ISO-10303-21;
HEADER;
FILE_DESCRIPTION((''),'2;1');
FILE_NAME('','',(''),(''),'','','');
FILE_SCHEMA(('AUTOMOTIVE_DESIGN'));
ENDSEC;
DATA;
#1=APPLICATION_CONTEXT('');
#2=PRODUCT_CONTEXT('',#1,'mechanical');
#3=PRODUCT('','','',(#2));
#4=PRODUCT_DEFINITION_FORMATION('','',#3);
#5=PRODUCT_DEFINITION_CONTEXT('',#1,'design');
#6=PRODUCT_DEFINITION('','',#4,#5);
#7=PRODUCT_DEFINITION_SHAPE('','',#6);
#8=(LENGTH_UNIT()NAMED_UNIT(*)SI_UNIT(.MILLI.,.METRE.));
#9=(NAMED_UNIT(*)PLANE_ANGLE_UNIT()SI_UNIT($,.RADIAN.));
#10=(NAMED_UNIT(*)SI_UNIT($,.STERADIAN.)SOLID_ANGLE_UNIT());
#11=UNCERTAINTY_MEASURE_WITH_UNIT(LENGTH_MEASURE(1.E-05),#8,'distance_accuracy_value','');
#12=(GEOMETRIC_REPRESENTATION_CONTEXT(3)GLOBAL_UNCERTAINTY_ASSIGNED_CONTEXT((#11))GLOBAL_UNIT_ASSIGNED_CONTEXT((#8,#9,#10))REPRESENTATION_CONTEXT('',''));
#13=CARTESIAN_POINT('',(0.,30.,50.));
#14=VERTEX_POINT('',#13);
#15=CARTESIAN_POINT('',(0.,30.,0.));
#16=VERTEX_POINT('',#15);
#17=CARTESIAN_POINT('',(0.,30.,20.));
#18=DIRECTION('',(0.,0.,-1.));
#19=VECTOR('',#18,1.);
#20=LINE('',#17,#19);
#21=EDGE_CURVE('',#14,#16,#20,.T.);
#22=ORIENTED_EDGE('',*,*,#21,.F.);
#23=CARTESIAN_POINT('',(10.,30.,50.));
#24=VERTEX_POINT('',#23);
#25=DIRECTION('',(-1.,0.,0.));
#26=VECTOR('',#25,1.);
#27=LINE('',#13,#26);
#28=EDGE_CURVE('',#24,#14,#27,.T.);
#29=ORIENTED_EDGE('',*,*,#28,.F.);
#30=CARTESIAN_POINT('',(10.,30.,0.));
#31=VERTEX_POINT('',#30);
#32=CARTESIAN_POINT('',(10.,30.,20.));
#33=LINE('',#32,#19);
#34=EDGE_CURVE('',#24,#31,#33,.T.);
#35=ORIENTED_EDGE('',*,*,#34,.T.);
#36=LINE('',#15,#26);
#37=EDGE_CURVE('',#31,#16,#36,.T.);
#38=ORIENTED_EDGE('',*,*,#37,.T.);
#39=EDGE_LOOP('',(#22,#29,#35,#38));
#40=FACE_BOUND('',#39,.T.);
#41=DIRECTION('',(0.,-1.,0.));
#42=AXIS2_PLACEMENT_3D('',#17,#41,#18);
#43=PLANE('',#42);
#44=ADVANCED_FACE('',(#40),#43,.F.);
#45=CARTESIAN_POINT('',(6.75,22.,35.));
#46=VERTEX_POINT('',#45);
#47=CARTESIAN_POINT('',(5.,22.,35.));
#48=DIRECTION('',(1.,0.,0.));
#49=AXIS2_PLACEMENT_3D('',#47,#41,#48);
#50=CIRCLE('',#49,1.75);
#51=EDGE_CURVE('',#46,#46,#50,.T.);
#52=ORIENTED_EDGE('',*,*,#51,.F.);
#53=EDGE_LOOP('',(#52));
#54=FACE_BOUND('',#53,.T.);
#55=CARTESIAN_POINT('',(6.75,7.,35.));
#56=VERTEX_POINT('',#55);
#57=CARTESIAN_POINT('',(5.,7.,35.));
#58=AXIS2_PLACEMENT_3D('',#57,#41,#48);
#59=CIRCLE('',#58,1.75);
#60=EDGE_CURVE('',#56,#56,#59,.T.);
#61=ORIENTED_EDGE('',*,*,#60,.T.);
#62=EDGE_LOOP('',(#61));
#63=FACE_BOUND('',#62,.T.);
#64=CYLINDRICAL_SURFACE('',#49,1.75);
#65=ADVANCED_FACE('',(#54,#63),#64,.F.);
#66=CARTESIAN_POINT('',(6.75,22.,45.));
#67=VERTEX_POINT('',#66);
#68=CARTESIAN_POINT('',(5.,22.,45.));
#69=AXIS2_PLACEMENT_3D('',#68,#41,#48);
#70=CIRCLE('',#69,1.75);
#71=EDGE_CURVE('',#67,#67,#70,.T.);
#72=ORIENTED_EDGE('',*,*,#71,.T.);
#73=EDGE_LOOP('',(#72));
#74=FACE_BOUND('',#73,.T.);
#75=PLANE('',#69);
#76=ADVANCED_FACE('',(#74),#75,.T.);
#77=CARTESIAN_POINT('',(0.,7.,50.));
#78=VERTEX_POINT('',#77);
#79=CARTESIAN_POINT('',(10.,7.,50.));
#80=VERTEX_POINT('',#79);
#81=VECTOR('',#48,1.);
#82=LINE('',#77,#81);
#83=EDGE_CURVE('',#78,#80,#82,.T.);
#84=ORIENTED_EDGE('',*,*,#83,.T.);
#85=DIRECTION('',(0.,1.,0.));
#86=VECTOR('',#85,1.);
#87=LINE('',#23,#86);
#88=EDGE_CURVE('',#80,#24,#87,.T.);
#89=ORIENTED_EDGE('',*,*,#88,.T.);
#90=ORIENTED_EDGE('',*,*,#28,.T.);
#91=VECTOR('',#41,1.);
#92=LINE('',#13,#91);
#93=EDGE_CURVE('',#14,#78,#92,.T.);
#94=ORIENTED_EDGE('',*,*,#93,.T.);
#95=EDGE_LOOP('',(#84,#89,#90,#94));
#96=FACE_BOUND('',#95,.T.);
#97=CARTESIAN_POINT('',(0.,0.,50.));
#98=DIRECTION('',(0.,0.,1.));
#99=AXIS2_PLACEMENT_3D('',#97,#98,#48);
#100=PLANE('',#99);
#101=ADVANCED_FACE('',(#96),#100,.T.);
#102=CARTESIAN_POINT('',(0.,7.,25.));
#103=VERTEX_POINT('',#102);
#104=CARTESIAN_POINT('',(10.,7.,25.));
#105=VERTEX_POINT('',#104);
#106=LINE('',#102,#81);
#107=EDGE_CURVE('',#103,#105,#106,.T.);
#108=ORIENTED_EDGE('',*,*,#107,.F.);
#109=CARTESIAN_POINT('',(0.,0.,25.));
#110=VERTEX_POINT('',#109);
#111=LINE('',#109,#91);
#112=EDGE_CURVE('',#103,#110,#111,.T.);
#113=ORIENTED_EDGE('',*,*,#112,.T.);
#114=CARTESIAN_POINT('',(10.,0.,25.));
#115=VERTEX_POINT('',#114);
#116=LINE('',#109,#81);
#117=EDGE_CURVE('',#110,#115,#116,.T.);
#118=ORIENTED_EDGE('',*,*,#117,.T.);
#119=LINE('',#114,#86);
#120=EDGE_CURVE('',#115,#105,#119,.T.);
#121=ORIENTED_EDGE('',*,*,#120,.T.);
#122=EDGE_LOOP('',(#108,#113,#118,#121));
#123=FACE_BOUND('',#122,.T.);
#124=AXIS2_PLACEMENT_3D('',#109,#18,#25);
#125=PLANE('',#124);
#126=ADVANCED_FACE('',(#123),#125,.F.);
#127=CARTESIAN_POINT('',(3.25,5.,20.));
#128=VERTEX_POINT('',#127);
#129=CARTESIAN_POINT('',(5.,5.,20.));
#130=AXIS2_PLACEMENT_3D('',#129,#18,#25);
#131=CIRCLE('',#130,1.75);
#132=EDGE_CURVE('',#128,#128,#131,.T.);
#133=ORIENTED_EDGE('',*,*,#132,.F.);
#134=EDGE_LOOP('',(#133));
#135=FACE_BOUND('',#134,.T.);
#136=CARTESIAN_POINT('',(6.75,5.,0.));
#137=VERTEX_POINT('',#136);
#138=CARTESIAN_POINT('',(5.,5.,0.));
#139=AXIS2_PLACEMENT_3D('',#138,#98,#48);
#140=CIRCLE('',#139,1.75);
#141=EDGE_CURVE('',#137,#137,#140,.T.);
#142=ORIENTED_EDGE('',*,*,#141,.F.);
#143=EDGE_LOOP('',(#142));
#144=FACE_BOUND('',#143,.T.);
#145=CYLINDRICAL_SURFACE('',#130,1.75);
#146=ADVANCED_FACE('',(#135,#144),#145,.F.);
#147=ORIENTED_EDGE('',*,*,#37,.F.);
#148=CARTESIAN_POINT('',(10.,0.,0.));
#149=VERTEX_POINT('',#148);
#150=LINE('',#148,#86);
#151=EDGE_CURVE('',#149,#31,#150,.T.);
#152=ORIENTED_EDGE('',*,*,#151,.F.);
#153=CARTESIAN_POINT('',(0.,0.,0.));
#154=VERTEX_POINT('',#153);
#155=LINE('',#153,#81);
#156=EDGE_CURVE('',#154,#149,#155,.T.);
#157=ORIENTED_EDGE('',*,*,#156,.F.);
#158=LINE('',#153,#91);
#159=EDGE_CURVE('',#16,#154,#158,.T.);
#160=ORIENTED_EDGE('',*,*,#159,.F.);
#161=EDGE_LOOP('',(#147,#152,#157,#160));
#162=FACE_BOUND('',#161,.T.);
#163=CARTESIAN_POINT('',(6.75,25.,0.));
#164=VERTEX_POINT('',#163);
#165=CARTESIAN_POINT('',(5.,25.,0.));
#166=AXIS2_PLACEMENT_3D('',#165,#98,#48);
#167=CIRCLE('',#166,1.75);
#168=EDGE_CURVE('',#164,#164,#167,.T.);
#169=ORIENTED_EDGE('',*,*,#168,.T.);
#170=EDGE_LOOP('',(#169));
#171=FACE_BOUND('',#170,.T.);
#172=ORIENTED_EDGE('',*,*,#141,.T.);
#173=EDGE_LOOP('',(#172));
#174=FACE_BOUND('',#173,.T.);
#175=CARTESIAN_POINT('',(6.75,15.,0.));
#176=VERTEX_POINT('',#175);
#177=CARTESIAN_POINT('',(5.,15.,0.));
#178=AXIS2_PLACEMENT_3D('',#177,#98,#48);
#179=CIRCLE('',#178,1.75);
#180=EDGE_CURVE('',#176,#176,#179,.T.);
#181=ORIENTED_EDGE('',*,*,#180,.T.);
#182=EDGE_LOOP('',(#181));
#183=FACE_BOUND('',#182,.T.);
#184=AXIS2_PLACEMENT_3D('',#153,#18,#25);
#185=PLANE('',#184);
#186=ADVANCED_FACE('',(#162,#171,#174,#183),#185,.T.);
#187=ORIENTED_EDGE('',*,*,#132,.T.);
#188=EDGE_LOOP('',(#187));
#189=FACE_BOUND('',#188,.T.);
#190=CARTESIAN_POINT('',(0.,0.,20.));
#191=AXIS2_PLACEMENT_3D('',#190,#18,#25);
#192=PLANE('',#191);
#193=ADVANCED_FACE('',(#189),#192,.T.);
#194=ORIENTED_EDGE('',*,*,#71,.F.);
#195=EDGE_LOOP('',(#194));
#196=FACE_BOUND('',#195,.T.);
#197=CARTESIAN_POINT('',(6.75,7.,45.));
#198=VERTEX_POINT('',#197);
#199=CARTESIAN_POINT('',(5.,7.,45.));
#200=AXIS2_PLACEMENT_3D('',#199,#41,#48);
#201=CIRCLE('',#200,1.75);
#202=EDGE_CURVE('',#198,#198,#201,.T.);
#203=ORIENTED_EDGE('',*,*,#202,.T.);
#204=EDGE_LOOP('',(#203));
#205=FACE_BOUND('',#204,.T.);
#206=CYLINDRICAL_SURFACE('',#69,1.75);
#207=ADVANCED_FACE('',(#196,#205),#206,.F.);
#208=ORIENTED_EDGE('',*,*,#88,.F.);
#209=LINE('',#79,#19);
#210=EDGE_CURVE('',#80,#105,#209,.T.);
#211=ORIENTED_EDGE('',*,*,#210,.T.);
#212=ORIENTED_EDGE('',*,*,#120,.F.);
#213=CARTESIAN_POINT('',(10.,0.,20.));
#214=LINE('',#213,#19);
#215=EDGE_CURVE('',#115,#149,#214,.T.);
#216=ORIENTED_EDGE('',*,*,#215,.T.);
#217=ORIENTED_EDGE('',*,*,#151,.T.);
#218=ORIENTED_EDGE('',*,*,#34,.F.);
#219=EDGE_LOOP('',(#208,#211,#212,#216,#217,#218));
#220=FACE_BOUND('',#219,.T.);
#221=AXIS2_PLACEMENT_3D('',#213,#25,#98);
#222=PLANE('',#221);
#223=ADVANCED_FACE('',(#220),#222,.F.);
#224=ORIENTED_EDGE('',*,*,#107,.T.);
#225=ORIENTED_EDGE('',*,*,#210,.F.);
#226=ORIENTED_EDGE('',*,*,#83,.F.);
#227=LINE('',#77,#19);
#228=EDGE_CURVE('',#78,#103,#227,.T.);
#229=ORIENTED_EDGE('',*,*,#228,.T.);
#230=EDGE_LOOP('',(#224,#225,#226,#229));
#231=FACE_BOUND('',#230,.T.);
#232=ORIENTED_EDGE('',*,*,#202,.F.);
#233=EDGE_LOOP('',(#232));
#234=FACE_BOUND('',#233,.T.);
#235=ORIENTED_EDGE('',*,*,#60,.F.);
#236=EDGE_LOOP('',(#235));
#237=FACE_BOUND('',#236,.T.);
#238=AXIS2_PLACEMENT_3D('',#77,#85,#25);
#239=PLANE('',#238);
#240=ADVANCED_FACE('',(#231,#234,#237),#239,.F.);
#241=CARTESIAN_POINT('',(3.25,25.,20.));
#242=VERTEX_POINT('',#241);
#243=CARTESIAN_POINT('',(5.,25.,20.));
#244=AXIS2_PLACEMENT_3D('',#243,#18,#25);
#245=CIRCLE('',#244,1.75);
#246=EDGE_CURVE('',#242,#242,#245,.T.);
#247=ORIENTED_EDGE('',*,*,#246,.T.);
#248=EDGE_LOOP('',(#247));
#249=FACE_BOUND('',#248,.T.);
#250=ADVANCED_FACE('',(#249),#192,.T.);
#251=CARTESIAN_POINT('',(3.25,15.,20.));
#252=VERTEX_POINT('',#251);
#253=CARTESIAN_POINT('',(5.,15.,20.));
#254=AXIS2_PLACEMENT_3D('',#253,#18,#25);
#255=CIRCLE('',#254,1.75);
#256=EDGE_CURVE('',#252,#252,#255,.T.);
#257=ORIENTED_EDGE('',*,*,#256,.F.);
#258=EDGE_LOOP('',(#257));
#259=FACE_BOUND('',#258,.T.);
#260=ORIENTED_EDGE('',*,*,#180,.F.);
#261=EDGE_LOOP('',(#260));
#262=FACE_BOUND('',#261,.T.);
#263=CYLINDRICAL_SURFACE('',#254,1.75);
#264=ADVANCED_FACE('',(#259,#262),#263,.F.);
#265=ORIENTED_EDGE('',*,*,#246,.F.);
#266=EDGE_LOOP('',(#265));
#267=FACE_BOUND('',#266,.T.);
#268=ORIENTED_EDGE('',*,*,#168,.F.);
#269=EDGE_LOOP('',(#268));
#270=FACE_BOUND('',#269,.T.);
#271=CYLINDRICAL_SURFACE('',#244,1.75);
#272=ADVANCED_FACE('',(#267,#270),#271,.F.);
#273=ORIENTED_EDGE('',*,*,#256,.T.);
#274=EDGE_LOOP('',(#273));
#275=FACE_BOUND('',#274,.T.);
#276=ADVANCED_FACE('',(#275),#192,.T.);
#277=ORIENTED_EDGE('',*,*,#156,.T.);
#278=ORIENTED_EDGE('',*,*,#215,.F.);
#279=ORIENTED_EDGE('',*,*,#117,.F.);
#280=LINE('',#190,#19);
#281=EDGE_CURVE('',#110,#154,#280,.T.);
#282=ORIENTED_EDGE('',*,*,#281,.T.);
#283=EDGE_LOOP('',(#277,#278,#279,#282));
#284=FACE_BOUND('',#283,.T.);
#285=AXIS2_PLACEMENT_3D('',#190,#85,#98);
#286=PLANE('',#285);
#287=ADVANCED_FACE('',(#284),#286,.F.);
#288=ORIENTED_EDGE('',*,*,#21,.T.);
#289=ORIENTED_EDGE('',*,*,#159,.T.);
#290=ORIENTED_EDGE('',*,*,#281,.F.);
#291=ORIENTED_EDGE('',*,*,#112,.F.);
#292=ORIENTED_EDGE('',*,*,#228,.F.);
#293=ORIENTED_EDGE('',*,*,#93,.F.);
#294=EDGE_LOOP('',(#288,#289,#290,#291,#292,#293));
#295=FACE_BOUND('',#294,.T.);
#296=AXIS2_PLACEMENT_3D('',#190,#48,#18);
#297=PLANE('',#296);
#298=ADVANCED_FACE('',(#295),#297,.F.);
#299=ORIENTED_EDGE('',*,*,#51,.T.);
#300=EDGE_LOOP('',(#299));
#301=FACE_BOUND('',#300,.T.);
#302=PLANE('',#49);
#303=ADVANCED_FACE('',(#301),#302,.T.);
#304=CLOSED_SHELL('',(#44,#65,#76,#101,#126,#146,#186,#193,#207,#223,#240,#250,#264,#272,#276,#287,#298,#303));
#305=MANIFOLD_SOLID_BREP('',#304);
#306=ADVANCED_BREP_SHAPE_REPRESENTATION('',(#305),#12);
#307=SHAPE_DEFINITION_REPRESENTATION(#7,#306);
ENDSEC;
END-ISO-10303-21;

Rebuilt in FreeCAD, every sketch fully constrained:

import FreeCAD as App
import Part
import Sketcher
Q = App.Units.Quantity


def add_polygon(sketch, points):
    """Adds a closed chain of lines whose ends are joined by coincident constraints."""
    first, n = sketch.GeometryCount, len(points)
    for a, b in zip(points, points[1:] + points[:1]):
        sketch.addGeometry(Part.LineSegment(App.Vector(*a, 0), App.Vector(*b, 0)), False)
    for i in range(n):
        sketch.addConstraint(Sketcher.Constraint("Coincident", first + i, 2, first + (i + 1) % n, 1))

doc = App.newDocument("Part")
body = doc.addObject("PartDesign::Body", "Body")

# Sketch on XY plane
sketch1 = body.newObject("Sketcher::SketchObject", "Sketch")
sketch1.AttachmentSupport = (doc.getObject("XY_Plane"), [""])
sketch1.MapMode = "FlatFace"
add_polygon(sketch1, [(0, 30), (0, 0), (10, 0), (10, 30)])  # lines 0-3
sketch1.addGeometry(Part.Circle(App.Vector(5, 5, 0), App.Vector(0, 0, 1), 1.8), False)  # 4
sketch1.addGeometry(Part.Circle(App.Vector(5, 15, 0), App.Vector(0, 0, 1), 1.8), False)  # 5
sketch1.addGeometry(Part.Circle(App.Vector(5, 25, 0), App.Vector(0, 0, 1), 1.8), False)  # 6
sketch1.addConstraint(Sketcher.Constraint("Vertical", 0))
sketch1.addConstraint(Sketcher.Constraint("Horizontal", 1))
sketch1.addConstraint(Sketcher.Constraint("Vertical", 2))
sketch1.addConstraint(Sketcher.Constraint("Horizontal", 3))
sketch1.addConstraint(Sketcher.Constraint("Coincident", 0, 2, -1, 1))
sketch1.addConstraint(Sketcher.Constraint("Equal", 4, 5))
sketch1.addConstraint(Sketcher.Constraint("Equal", 5, 6))
sketch1.addConstraint(Sketcher.Constraint("Vertical", 4, 3, 5, 3))
sketch1.addConstraint(Sketcher.Constraint("Vertical", 5, 3, 6, 3))
sketch1.addConstraint(Sketcher.Constraint("Diameter", 4, Q("3.5 mm")))
sketch1.addConstraint(Sketcher.Constraint("DistanceX", 1, 1, 1, 2, Q("10 mm")))
sketch1.addConstraint(Sketcher.Constraint("DistanceY", 0, 2, 0, 1, Q("30 mm")))
sketch1.addConstraint(Sketcher.Constraint("DistanceX", -1, 1, 4, 3, Q("5 mm")))
sketch1.addConstraint(Sketcher.Constraint("DistanceY", -1, 1, 4, 3, Q("5 mm")))
sketch1.addConstraint(Sketcher.Constraint("DistanceY", -1, 1, 5, 3, Q("15 mm")))
sketch1.addConstraint(Sketcher.Constraint("DistanceY", -1, 1, 6, 3, Q("25 mm")))
pad1 = body.newObject("PartDesign::Pad", "Pad")
pad1.Profile = sketch1
pad1.Length = 20

# Sketch on XY plane
sketch2 = body.newObject("Sketcher::SketchObject", "Sketch001")
sketch2.AttachmentSupport = (doc.getObject("XY_Plane"), [""])
sketch2.MapMode = "FlatFace"
sketch2.AttachmentOffset = App.Placement(App.Vector(0, 0, 20), App.Rotation())
add_polygon(sketch2, [(0, 30), (0, 0), (10, 0), (10, 30)])  # lines 0-3
sketch2.addConstraint(Sketcher.Constraint("Vertical", 0))
sketch2.addConstraint(Sketcher.Constraint("Horizontal", 1))
sketch2.addConstraint(Sketcher.Constraint("Vertical", 2))
sketch2.addConstraint(Sketcher.Constraint("Horizontal", 3))
sketch2.addConstraint(Sketcher.Constraint("Coincident", 0, 2, -1, 1))
sketch2.addConstraint(Sketcher.Constraint("DistanceX", 1, 1, 1, 2, Q("10 mm")))
sketch2.addConstraint(Sketcher.Constraint("DistanceY", 0, 2, 0, 1, Q("30 mm")))
pad2 = body.newObject("PartDesign::Pad", "Pad001")
pad2.Profile = sketch2
pad2.Length = 5

# Sketch on XY plane
sketch3 = body.newObject("Sketcher::SketchObject", "Sketch002")
sketch3.AttachmentSupport = (doc.getObject("XY_Plane"), [""])
sketch3.MapMode = "FlatFace"
sketch3.AttachmentOffset = App.Placement(App.Vector(0, 0, 25), App.Rotation())
add_polygon(sketch3, [(0, 30), (0, 7), (10, 7), (10, 30)])  # lines 0-3
sketch3.addConstraint(Sketcher.Constraint("Vertical", 0))
sketch3.addConstraint(Sketcher.Constraint("Horizontal", 1))
sketch3.addConstraint(Sketcher.Constraint("Vertical", 2))
sketch3.addConstraint(Sketcher.Constraint("Horizontal", 3))
sketch3.addConstraint(Sketcher.Constraint("PointOnObject", 0, 2, -2))
sketch3.addConstraint(Sketcher.Constraint("DistanceX", 1, 1, 1, 2, Q("10 mm")))
sketch3.addConstraint(Sketcher.Constraint("DistanceY", 0, 2, 0, 1, Q("23 mm")))
sketch3.addConstraint(Sketcher.Constraint("DistanceY", -1, 1, 0, 2, Q("7 mm")))
pad3 = body.newObject("PartDesign::Pad", "Pad002")
pad3.Profile = sketch3
pad3.Length = 25

# Sketch on XZ plane
sketch4 = body.newObject("Sketcher::SketchObject", "Sketch003")
sketch4.AttachmentSupport = (doc.getObject("XZ_Plane"), [""])
sketch4.MapMode = "FlatFace"
sketch4.AttachmentOffset = App.Placement(App.Vector(0, 0, -7), App.Rotation())
sketch4.addGeometry(Part.Circle(App.Vector(5, 45, 0), App.Vector(0, 0, 1), 1.8), False)
sketch4.addGeometry(Part.Circle(App.Vector(5, 35, 0), App.Vector(0, 0, 1), 1.8), False)
sketch4.addConstraint(Sketcher.Constraint("Equal", 0, 1))
sketch4.addConstraint(Sketcher.Constraint("Vertical", 0, 3, 1, 3))
sketch4.addConstraint(Sketcher.Constraint("Diameter", 0, Q("3.5 mm")))
sketch4.addConstraint(Sketcher.Constraint("DistanceX", -1, 1, 0, 3, Q("5 mm")))
sketch4.addConstraint(Sketcher.Constraint("DistanceY", -1, 1, 0, 3, Q("45 mm")))
sketch4.addConstraint(Sketcher.Constraint("DistanceY", -1, 1, 1, 3, Q("35 mm")))
pocket1 = body.newObject("PartDesign::Pocket", "Pocket")
pocket1.Profile = sketch4
pocket1.Length = 15

doc.recompute()
